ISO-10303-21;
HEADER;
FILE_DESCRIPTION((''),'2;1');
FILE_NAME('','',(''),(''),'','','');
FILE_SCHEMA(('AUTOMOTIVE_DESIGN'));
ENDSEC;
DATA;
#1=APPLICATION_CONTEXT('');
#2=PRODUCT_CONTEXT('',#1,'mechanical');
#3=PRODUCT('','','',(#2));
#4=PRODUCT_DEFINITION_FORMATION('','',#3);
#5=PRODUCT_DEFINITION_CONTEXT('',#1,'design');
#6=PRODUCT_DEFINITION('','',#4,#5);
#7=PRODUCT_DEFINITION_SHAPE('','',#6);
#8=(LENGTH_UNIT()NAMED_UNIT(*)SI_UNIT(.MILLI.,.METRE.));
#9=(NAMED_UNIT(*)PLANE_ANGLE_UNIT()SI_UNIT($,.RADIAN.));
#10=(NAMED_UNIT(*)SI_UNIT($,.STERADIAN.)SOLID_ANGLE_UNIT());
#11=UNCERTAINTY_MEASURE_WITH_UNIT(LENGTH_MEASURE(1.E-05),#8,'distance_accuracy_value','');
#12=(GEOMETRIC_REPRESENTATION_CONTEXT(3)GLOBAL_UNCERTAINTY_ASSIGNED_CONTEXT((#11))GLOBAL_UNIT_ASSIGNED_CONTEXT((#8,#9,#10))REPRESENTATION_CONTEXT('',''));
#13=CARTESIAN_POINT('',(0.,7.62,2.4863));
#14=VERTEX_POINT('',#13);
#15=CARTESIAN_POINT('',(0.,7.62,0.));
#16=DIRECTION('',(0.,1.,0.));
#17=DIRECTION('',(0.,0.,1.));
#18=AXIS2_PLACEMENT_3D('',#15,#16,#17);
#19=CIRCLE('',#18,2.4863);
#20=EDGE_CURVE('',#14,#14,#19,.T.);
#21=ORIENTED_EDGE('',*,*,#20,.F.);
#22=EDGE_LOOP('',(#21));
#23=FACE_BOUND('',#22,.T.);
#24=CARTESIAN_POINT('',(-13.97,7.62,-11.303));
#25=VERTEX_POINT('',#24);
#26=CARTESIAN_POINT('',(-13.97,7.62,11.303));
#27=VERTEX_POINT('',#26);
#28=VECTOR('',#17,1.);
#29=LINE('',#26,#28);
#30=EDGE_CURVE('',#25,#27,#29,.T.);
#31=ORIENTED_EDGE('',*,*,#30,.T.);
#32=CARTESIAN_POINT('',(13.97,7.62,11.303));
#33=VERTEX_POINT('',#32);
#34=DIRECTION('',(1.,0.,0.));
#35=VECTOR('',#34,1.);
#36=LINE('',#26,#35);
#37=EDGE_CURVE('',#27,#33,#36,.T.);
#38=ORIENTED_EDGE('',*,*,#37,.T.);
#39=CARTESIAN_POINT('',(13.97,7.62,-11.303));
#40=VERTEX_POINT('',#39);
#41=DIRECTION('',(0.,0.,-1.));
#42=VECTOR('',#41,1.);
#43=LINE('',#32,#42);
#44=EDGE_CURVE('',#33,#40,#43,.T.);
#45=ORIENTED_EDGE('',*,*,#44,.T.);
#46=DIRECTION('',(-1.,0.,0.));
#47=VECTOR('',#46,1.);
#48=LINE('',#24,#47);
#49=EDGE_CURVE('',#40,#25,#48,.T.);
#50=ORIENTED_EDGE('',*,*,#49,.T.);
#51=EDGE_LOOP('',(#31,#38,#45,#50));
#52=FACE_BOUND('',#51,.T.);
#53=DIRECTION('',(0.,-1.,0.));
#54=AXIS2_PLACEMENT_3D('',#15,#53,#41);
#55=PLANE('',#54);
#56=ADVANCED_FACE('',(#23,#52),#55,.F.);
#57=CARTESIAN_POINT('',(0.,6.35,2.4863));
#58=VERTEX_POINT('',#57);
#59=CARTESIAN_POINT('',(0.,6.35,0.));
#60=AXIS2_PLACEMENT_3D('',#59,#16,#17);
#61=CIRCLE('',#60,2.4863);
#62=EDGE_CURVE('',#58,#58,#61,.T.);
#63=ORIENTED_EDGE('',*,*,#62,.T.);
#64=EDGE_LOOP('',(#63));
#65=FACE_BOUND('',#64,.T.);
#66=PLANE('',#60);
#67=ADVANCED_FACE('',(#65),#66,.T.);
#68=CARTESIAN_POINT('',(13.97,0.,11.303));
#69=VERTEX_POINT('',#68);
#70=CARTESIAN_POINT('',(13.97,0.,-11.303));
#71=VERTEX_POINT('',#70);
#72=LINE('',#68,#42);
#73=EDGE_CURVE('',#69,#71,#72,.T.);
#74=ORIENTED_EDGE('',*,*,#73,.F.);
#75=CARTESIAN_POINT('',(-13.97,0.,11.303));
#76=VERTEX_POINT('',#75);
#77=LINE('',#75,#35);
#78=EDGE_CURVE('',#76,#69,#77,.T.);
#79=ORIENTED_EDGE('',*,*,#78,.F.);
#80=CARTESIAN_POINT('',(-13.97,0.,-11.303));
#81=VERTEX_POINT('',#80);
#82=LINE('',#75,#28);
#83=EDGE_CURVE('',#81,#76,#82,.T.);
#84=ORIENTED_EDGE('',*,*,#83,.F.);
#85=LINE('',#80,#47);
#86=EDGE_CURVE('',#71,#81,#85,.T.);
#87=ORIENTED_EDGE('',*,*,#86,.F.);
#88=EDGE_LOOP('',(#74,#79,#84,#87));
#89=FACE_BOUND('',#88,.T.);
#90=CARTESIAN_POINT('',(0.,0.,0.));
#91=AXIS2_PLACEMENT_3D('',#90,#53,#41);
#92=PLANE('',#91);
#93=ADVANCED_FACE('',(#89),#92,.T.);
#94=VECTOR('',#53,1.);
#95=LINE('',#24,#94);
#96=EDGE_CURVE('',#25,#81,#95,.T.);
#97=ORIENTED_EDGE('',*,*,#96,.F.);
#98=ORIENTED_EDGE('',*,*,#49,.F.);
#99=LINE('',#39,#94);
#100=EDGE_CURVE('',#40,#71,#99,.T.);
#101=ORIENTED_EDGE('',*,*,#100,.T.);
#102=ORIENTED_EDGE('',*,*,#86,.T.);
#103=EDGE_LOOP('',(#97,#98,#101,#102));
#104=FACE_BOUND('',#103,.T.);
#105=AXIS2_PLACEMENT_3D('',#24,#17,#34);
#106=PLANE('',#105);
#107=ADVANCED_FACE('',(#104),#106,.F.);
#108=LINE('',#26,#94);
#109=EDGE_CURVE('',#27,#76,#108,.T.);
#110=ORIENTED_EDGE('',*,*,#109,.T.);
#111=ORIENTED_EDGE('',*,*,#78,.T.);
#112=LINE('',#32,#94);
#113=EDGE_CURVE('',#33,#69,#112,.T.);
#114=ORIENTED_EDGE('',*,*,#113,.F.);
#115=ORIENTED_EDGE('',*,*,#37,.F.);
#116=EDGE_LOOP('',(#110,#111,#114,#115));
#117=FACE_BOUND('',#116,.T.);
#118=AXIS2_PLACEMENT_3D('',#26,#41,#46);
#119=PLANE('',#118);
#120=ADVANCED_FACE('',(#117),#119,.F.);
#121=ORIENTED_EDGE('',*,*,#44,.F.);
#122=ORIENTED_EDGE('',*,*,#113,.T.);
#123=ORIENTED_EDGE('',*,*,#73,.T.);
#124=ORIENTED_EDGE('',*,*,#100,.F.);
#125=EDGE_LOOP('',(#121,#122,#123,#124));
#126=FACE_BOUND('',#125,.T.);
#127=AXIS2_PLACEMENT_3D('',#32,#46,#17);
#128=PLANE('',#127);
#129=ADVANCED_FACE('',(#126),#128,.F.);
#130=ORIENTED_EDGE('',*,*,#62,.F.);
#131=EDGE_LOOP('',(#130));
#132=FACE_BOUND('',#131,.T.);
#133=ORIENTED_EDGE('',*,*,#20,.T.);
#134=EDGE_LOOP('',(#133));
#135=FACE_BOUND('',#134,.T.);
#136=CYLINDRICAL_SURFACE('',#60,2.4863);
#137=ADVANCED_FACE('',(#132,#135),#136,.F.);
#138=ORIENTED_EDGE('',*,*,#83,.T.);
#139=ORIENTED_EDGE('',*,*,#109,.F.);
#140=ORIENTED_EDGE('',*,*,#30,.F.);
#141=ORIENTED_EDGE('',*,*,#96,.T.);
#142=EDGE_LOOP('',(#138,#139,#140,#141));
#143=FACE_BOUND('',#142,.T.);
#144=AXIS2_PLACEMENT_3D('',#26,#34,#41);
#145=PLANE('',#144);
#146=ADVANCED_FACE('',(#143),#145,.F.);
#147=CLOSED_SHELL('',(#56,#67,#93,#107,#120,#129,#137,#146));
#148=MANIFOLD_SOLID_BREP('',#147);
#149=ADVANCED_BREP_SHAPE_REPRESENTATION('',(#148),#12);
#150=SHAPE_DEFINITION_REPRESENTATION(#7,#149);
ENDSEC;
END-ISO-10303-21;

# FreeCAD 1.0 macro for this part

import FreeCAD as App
import Part
import Sketcher
from FreeCAD import Vector
Q = App.Units.Quantity


def add_polygon(sketch, points):
    """Adds a closed chain of lines whose ends are joined by coincident constraints."""
    first, n = sketch.GeometryCount, len(points)
    for a, b in zip(points, points[1:] + points[:1]):
        sketch.addGeometry(Part.LineSegment(App.Vector(*a, 0), App.Vector(*b, 0)), False)
    for i in range(n):
        sketch.addConstraint(Sketcher.Constraint("Coincident", first + i, 2, first + (i + 1) % n, 1))

doc = App.newDocument("Part")
body = doc.addObject("PartDesign::Body", "Body")

sketch1 = body.newObject("Sketcher::SketchObject", "Sketch")
sketch1.AttachmentSupport = (doc.getObject("XZ_Plane"), [""])
sketch1.MapMode = "FlatFace"
add_polygon(sketch1, [(-14, -11), (-14, 11), (14, 11), (14, -11)])
sketch1.addConstraint([
    Sketcher.Constraint("Vertical", 0),
    Sketcher.Constraint("Horizontal", 1),
    Sketcher.Constraint("Vertical", 2),
    Sketcher.Constraint("Horizontal", 3),
    Sketcher.Constraint("Symmetric", 0, 2, 2, 2, -1, 1),
    Sketcher.Constraint("DistanceX", 1, 1, 1, 2, Q("1.1 in")),
    Sketcher.Constraint("DistanceY", 0, 1, 0, 2, Q("0.89 in")),
])
pad1 = body.newObject("PartDesign::Pad", "Pad")
pad1.Profile = sketch1
pad1.Length = Q("0.3 in")
pad1.Reversed = True

sketch2 = body.newObject("Sketcher::SketchObject", "Sketch001")
sketch2.AttachmentSupport = (doc.getObject("XZ_Plane"), [""])
sketch2.MapMode = "FlatFace"
sketch2.AttachmentOffset = App.Placement(Vector(0, 0, -0.3 * 25.4), App.Rotation())
sketch2.addGeometry(Part.Circle(Vector(0, 0, 0), Vector(0, 0, 1), 2.5), False)
sketch2.addConstraint([
    Sketcher.Constraint("Coincident", 0, 3, -1, 1),
    Sketcher.Constraint("Diameter", 0, 4.972601),
])
pocket1 = body.newObject("PartDesign::Pocket", "Pocket")
pocket1.Profile = sketch2
pocket1.Length = Q("0.05 in")
pocket1.Reversed = True

doc.recompute()
